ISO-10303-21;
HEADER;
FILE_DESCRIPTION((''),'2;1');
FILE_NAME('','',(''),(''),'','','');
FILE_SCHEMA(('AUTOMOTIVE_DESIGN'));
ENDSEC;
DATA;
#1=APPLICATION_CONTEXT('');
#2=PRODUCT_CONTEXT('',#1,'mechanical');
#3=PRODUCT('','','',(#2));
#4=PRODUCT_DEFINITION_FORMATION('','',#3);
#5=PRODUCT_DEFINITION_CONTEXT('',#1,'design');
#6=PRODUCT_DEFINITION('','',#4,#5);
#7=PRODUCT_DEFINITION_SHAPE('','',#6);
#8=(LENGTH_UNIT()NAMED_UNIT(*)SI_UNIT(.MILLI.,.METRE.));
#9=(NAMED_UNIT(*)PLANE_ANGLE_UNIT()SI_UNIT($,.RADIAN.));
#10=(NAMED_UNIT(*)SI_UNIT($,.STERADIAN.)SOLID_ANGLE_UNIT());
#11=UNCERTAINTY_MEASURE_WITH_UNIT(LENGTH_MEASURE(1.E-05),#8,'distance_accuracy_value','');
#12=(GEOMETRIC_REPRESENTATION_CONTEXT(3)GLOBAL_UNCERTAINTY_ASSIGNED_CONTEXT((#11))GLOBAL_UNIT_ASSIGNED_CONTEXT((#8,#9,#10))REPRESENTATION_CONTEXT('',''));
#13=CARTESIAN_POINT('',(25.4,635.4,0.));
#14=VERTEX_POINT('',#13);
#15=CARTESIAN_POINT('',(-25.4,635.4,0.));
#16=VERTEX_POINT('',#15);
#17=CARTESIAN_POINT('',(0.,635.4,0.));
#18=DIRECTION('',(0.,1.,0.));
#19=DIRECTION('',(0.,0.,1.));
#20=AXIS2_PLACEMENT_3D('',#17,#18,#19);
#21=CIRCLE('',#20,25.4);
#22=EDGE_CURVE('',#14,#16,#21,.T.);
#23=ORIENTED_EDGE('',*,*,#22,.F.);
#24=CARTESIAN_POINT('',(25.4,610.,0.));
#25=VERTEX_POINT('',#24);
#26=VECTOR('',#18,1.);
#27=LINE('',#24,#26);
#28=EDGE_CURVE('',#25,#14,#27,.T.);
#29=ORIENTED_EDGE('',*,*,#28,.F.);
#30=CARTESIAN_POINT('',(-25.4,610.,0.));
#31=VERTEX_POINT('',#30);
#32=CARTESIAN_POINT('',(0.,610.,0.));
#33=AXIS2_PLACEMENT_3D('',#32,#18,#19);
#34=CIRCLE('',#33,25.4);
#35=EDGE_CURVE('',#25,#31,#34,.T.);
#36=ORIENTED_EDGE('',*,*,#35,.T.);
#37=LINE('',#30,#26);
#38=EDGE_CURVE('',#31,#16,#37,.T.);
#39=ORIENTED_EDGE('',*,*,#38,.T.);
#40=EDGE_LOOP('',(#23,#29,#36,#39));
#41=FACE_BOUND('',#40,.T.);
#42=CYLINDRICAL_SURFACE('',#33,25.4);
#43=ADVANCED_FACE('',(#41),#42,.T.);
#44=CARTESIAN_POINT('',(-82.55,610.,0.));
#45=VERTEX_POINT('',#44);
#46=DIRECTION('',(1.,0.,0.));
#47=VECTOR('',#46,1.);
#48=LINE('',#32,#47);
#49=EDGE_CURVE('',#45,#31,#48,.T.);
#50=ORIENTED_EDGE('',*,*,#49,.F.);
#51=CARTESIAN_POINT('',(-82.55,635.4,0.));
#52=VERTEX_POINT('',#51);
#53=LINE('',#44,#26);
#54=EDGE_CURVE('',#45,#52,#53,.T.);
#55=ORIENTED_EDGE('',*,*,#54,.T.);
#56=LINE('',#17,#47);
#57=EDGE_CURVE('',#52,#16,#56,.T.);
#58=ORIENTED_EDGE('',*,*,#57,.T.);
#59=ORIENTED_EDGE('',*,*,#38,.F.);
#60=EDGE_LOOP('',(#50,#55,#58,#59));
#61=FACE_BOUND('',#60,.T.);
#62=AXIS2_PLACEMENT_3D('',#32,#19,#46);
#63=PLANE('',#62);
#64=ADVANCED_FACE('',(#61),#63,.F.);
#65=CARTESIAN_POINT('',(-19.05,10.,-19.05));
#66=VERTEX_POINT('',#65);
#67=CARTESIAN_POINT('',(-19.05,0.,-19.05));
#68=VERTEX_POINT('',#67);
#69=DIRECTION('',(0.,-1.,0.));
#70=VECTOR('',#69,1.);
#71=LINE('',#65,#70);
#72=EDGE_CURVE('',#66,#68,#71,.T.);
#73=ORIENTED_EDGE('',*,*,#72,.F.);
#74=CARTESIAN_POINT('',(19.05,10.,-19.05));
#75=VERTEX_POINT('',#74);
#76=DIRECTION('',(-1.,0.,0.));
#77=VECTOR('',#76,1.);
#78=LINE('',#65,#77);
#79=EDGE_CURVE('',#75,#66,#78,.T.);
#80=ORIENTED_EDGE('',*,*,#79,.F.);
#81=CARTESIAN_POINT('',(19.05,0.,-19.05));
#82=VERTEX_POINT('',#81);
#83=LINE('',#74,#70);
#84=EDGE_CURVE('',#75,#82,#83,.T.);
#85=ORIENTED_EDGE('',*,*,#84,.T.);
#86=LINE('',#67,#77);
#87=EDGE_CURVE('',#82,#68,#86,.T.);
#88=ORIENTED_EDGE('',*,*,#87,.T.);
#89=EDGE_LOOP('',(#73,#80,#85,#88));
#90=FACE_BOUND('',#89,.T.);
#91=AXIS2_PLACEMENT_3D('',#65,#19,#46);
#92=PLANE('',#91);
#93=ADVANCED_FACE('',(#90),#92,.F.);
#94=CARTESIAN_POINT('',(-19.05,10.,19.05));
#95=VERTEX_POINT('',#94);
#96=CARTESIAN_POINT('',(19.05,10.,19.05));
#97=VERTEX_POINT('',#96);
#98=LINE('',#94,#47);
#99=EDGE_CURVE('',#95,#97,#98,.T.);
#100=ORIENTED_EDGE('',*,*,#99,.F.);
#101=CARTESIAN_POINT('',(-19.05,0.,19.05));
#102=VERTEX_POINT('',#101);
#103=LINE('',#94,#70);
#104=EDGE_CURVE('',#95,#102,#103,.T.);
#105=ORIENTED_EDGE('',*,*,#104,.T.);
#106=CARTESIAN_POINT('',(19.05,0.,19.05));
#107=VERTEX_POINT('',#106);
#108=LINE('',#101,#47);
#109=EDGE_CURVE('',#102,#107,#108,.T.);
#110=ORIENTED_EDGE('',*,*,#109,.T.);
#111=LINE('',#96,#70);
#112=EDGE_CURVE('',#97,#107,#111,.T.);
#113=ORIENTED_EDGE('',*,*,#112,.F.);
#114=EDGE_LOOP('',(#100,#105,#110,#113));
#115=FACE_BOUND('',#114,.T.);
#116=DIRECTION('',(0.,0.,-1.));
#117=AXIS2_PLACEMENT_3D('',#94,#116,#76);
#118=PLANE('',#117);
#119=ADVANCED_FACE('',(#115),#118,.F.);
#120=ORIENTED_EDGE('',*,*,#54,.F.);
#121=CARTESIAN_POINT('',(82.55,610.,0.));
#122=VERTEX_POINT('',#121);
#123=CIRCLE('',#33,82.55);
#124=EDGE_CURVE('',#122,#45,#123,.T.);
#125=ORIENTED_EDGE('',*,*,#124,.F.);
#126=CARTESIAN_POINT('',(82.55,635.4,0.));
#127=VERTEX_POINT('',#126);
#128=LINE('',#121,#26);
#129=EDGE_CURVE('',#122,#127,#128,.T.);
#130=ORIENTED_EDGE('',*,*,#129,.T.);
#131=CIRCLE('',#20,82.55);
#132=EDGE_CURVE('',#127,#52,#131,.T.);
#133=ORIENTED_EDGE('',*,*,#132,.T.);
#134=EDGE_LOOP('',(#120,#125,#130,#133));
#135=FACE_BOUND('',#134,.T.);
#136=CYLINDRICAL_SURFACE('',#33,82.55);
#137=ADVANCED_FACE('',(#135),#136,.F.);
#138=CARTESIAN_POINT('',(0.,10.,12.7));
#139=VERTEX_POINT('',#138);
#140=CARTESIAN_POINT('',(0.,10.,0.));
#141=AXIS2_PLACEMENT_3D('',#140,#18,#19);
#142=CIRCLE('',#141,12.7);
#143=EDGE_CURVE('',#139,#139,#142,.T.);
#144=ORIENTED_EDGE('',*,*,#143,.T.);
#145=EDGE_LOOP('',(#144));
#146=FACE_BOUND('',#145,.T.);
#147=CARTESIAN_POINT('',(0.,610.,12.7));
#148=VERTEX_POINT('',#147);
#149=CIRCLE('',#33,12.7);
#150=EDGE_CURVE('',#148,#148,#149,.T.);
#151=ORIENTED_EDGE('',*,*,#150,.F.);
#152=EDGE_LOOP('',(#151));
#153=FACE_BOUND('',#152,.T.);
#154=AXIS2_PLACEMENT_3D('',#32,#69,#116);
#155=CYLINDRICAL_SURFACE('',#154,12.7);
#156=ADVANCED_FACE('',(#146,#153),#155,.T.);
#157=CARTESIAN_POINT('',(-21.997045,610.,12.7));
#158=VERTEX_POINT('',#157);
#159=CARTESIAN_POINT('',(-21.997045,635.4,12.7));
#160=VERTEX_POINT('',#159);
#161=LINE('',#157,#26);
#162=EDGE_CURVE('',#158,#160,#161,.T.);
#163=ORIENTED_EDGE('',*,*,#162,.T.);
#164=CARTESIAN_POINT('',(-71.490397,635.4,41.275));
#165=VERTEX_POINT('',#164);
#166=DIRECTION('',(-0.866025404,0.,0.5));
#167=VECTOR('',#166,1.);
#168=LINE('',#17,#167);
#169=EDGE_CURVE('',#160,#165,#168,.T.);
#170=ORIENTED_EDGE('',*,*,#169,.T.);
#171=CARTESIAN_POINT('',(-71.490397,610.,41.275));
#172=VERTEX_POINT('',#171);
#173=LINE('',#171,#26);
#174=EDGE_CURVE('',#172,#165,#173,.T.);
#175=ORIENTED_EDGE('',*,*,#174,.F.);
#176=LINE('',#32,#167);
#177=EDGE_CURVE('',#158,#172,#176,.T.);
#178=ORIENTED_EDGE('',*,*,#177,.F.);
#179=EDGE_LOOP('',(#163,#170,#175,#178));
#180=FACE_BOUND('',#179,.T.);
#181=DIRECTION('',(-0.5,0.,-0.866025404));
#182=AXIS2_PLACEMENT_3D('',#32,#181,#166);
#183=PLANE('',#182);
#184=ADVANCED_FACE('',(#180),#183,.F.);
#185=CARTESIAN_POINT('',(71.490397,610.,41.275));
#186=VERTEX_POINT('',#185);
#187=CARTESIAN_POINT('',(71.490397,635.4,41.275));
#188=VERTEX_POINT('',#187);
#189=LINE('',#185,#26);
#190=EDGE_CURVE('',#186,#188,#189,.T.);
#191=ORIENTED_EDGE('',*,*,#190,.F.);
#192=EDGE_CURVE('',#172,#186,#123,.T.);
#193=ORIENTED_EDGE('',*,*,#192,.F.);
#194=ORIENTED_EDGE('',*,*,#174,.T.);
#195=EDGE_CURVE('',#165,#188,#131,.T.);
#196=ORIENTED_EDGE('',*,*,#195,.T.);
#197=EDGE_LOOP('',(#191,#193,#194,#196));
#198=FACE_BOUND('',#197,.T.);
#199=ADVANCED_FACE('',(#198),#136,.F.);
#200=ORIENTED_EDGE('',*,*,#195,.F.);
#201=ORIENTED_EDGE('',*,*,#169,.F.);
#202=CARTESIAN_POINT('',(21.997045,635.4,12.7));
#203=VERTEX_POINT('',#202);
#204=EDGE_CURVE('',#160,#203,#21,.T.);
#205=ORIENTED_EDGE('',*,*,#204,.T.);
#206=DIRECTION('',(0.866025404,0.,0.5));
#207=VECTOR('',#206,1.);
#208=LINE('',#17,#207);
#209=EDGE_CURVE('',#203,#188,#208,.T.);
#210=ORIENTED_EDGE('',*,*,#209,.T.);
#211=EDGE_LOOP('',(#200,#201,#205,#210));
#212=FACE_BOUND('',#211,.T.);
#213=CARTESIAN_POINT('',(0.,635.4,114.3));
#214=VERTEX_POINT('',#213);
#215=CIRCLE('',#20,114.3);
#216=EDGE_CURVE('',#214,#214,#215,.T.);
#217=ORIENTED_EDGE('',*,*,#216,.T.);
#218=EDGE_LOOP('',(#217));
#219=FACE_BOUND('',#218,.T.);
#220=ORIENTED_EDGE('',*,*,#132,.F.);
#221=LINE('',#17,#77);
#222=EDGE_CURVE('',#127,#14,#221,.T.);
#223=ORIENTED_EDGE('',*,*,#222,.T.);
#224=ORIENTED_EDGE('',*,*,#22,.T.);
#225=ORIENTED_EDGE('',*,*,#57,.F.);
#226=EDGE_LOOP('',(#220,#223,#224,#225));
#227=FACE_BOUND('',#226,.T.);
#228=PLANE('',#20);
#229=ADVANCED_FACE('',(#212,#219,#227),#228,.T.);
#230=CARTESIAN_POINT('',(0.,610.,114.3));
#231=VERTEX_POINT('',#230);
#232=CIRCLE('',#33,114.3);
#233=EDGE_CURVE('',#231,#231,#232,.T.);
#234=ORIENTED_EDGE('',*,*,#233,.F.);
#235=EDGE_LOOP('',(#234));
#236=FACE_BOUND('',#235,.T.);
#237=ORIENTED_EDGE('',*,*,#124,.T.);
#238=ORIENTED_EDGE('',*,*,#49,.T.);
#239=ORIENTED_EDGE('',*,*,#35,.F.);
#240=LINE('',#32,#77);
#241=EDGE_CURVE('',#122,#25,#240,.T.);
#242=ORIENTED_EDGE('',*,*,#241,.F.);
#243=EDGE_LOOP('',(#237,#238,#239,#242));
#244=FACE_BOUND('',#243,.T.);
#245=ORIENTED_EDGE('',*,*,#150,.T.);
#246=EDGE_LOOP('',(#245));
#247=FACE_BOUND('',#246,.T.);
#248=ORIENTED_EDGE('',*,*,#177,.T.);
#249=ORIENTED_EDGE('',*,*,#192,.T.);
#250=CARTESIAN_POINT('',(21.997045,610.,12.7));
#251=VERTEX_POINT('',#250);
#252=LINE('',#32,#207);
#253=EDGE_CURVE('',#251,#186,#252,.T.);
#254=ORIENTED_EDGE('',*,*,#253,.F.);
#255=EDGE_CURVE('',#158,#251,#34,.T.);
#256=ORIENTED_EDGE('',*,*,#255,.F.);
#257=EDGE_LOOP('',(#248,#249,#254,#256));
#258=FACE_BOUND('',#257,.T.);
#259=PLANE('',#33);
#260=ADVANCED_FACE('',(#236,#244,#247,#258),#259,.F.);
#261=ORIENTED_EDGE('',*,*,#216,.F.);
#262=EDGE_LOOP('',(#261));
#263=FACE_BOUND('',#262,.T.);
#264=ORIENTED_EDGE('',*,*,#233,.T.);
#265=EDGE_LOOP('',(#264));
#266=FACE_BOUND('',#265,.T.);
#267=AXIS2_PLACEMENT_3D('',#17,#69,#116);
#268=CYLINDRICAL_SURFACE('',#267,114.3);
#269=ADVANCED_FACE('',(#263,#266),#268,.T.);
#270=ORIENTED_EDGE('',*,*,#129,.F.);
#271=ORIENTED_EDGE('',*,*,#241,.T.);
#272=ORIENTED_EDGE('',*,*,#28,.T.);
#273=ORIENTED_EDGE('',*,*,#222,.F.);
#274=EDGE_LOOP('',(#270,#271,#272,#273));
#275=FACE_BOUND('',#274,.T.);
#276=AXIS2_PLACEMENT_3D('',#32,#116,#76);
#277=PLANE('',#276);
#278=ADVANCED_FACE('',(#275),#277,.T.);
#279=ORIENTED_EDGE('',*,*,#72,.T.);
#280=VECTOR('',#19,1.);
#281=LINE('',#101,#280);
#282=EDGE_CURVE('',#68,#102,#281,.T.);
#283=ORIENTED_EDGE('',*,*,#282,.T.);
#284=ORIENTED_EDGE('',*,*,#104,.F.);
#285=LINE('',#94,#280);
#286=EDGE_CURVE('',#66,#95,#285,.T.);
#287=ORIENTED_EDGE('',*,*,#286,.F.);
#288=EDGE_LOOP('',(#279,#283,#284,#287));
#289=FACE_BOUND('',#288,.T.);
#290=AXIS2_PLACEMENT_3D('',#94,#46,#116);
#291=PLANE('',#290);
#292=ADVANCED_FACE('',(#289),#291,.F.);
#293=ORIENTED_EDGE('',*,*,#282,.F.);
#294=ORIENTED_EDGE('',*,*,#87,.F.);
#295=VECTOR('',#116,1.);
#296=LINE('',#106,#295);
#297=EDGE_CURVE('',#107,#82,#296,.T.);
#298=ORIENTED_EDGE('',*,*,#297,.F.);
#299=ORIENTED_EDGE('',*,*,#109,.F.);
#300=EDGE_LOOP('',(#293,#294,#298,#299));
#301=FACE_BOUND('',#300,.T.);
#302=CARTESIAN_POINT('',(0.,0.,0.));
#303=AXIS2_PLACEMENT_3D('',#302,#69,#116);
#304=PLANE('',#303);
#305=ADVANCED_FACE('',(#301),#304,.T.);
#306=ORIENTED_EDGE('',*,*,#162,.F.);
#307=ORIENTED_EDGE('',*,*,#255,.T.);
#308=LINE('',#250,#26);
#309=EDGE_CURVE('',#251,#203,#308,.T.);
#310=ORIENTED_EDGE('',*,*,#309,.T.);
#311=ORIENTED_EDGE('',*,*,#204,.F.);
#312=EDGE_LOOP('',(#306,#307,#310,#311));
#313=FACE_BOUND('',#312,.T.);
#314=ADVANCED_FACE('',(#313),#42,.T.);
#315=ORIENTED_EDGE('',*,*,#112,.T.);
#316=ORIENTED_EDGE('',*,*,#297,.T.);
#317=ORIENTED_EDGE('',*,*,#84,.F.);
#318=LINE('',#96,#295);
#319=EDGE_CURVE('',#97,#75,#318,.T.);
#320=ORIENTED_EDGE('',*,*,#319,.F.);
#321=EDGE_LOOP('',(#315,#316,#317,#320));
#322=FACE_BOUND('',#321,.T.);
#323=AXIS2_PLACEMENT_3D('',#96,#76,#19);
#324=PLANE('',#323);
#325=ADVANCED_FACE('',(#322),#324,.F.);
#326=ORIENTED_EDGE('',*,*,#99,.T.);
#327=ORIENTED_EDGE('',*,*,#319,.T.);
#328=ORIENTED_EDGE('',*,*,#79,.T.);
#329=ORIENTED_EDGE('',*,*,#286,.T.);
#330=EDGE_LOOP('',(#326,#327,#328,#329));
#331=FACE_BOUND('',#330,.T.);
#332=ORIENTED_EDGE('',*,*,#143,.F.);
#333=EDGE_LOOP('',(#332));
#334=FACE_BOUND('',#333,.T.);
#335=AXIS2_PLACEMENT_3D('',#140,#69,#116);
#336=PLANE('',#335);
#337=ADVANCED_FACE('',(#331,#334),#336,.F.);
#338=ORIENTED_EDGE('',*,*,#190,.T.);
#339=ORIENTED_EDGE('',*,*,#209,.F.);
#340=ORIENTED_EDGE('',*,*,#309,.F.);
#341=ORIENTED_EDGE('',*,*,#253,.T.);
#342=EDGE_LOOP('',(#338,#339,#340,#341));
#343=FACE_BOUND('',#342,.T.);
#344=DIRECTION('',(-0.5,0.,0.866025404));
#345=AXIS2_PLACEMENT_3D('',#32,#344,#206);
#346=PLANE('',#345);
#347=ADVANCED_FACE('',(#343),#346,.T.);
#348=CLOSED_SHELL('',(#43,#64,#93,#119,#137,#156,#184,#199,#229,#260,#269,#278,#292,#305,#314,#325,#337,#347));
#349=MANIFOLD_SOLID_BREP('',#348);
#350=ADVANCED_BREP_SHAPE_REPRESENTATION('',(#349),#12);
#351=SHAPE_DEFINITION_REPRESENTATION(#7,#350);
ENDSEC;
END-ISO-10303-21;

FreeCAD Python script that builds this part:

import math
import FreeCAD as App
import Part
import Sketcher
Q = App.Units.Quantity

doc = App.newDocument("Part")
body = doc.addObject("PartDesign::Body", "Body")

# Sketch on XZ plane
sketch1 = doc.addObject("Sketcher::SketchObject", "Sketch")
body.addObject(sketch1)
sketch1.AttachmentSupport = (doc.XZ_Plane, [""])
sketch1.MapMode = "FlatFace"
sketch1.addGeometry([
    Part.LineSegment(App.Vector(-19, -19, 0), App.Vector(-19, 19, 0)),
    Part.LineSegment(App.Vector(-19, 19, 0), App.Vector(19, 19, 0)),
    Part.LineSegment(App.Vector(19, 19, 0), App.Vector(19, -19, 0)),
    Part.LineSegment(App.Vector(19, -19, 0), App.Vector(-19, -19, 0)),
], False)
sketch1.addConstraint([
    Sketcher.Constraint("Coincident", 0, 2, 1, 1),
    Sketcher.Constraint("Coincident", 1, 2, 2, 1),
    Sketcher.Constraint("Coincident", 2, 2, 3, 1),
    Sketcher.Constraint("Coincident", 3, 2, 0, 1),
    Sketcher.Constraint("Vertical", 0),
    Sketcher.Constraint("Horizontal", 1),
    Sketcher.Constraint("Vertical", 2),
    Sketcher.Constraint("Horizontal", 3),
    Sketcher.Constraint("Symmetric", 0, 2, 2, 2, -1, 1),
    Sketcher.Constraint("Equal", 3, 0),
    Sketcher.Constraint("DistanceX", 1, 1, 1, 2, Q("1.5 in")),
])
pad1 = doc.addObject("PartDesign::Pad", "Pad")
body.addObject(pad1)
pad1.Profile = sketch1
pad1.Length = 10
pad1.Reversed = True

# Sketch on XZ plane
sketch2 = doc.addObject("Sketcher::SketchObject", "Sketch001")
body.addObject(sketch2)
sketch2.AttachmentSupport = (doc.XZ_Plane, [""])
sketch2.MapMode = "FlatFace"
sketch2.AttachmentOffset = App.Placement(App.Vector(0, 0, -10), App.Rotation())
sketch2.addGeometry(Part.Circle(App.Vector(0, 0, 0), App.Vector(0, 0, 1), 13), False)
sketch2.addConstraint([
    Sketcher.Constraint("Coincident", 0, 3, -1, 1),
    Sketcher.Constraint("Diameter", 0, Q("1 in")),
])
pad2 = doc.addObject("PartDesign::Pad", "Pad001")
body.addObject(pad2)
pad2.Profile = sketch2
pad2.Length = 600
pad2.Reversed = True

# Sketch on XZ plane
sketch3 = doc.addObject("Sketcher::SketchObject", "Sketch002")
body.addObject(sketch3)
sketch3.AttachmentSupport = (doc.XZ_Plane, [""])
sketch3.MapMode = "FlatFace"
sketch3.AttachmentOffset = App.Placement(App.Vector(0, 0, -610), App.Rotation())
sketch3.addGeometry(Part.Circle(App.Vector(0, 0, 0), App.Vector(0, 0, 1), 114), False)
sketch3.addConstraint([
    Sketcher.Constraint("Coincident", 0, 3, -1, 1),
    Sketcher.Constraint("Diameter", 0, Q("9 in")),
])
pad3 = doc.addObject("PartDesign::Pad", "Pad002")
body.addObject(pad3)
pad3.Profile = sketch3
pad3.Length = Q("1 in")
pad3.Reversed = True

# Sketch on XZ plane
sketch4 = doc.addObject("Sketcher::SketchObject", "Sketch003")
body.addObject(sketch4)
sketch4.AttachmentSupport = (doc.XZ_Plane, [""])
sketch4.MapMode = "FlatFace"
sketch4.AttachmentOffset = App.Placement(App.Vector(0, 0, -635.4), App.Rotation())
sketch4.addGeometry([
    Part.LineSegment(App.Vector(25, 0, 0), App.Vector(83, 0, 0)),  # 0
    Part.ArcOfCircle(Part.Circle(App.Vector(0, 0, 0), App.Vector(0, 0, 1), 83), math.radians(180), math.radians(360)),  # 1
    Part.LineSegment(App.Vector(-83, 0, 0), App.Vector(-25, 0, 0)),  # 2
    Part.ArcOfCircle(Part.Circle(App.Vector(0, 0, 0), App.Vector(0, 0, 1), 25), math.radians(180), math.radians(360)),  # 3
    Part.LineSegment(App.Vector(71, 41, 0), App.Vector(22, 13, 0)),  # 4
    Part.ArcOfCircle(Part.Circle(App.Vector(0, 0, 0), App.Vector(0, 0, 1), 25), math.radians(30), math.radians(150)),  # 5
    Part.LineSegment(App.Vector(-22, 13, 0), App.Vector(-71, 41, 0)),  # 6
    Part.ArcOfCircle(Part.Circle(App.Vector(0, 0, 0), App.Vector(0, 0, 1), 83), math.radians(30), math.radians(150)),  # 7
], False)
sketch4.addConstraint([
    Sketcher.Constraint("Coincident", 0, 2, 1, 2),
    Sketcher.Constraint("Coincident", 1, 1, 2, 1),
    Sketcher.Constraint("Coincident", 2, 2, 3, 1),
    Sketcher.Constraint("Coincident", 3, 2, 0, 1),
    Sketcher.Constraint("Coincident", 4, 2, 5, 1),
    Sketcher.Constraint("Coincident", 5, 2, 6, 1),
    Sketcher.Constraint("Coincident", 6, 2, 7, 2),
    Sketcher.Constraint("Coincident", 7, 1, 4, 1),
    Sketcher.Constraint("Horizontal", 0),
    Sketcher.Constraint("Horizontal", 2),
    Sketcher.Constraint("Coincident", 1, 3, -1, 1),
    Sketcher.Constraint("Coincident", 3, 3, -1, 1),
    Sketcher.Constraint("Coincident", 5, 3, -1, 1),
    Sketcher.Constraint("Coincident", 7, 3, -1, 1),
    Sketcher.Constraint("Equal", 3, 5),
    Sketcher.Constraint("Equal", 1, 7),
    Sketcher.Constraint("PointOnObject", 0, 2, -1),
    Sketcher.Constraint("PointOnObject", 1, 1, -1),
    Sketcher.Constraint("Horizontal", 4, 2, 5, 2),
    Sketcher.Constraint("Horizontal", 6, 2, 7, 1),
    Sketcher.Constraint("Radius", 3, Q("1 in")),
    Sketcher.Constraint("Radius", 1, Q("3.25 in")),
    Sketcher.Constraint("Angle", 4, Q("-150 deg")),
    Sketcher.Constraint("DistanceY", -1, 1, 4, 2, Q("0.5 in")),
])
pocket1 = doc.addObject("PartDesign::Pocket", "Pocket")
body.addObject(pocket1)
pocket1.Profile = sketch4
pocket1.Length = Q("1 in")
pocket1.Reversed = True

doc.recompute()
